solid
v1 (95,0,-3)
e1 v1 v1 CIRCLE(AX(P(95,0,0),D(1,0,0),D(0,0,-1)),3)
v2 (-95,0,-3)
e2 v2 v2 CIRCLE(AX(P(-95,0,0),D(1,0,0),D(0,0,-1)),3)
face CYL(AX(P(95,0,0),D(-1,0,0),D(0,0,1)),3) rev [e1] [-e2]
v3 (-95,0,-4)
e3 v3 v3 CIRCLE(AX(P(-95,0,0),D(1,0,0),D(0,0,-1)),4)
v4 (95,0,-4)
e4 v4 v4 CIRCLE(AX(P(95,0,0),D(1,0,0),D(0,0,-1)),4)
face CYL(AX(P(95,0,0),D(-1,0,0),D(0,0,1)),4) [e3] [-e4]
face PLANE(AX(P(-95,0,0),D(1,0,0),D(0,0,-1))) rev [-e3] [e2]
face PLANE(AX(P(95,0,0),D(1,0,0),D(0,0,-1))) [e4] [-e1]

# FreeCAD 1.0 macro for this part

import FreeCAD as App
import Part
import Sketcher
Q = App.Units.Quantity

doc = App.newDocument("Part")
body = doc.addObject("PartDesign::Body", "Body")

# Sketch on YZ plane
sketch1 = body.newObject("Sketcher::SketchObject", "Sketch")
sketch1.AttachmentSupport = (doc.getObject("YZ_Plane"), [""])
sketch1.MapMode = "FlatFace"
sketch1.addGeometry([
    Part.Circle(App.Vector(0, 0, 0), App.Vector(0, 0, 1), 4),
    Part.Circle(App.Vector(0, 0, 0), App.Vector(0, 0, 1), 3),
], False)
sketch1.addConstraint([
    Sketcher.Constraint("Coincident", 0, 3, -1, 1),
    Sketcher.Constraint("Coincident", 1, 3, -1, 1),
    Sketcher.Constraint("Diameter", 0, Q("8 mm")),
    Sketcher.Constraint("Diameter", 1, Q("6 mm")),
])
pad1 = body.newObject("PartDesign::Pad", "Pad")
pad1.Profile = sketch1
pad1.Length = 190
pad1.Midplane = True

doc.recompute()
